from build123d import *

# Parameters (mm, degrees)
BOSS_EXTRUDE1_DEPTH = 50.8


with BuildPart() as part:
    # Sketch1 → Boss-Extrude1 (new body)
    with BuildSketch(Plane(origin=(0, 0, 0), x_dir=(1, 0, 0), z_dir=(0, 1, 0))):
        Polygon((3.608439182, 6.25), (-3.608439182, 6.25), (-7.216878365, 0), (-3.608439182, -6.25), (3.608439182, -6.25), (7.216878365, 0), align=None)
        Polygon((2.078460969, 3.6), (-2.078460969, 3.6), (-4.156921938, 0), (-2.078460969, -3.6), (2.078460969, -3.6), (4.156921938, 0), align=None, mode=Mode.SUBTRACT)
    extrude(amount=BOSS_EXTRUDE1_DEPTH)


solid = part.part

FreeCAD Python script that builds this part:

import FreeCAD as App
import Part
import Sketcher
from FreeCAD import Vector
Q = App.Units.Quantity

doc = App.newDocument("Part")
params = doc.addObject("Spreadsheet::Sheet", "Params")
for row, (alias, value) in enumerate([
    ("pad1_length", "2 in"),
], start=1):
    params.set(f"A{row}", alias)
    params.set(f"B{row}", "=" + value)
    params.setAlias(f"B{row}", alias)

body = doc.addObject("PartDesign::Body", "Body")

# Sketch on XZ plane
sketch1 = doc.addObject("Sketcher::SketchObject", "Sketch")
body.addObject(sketch1)
sketch1.AttachmentSupport = (doc.XZ_Plane, [""])
sketch1.MapMode = "FlatFace"
sketch1.addGeometry([
    Part.LineSegment(Vector(3.6, -6.2, 0), Vector(-3.6, -6.2, 0)),  # 0
    Part.LineSegment(Vector(-3.6, -6.2, 0), Vector(-7.2, 0, 0)),  # 1
    Part.LineSegment(Vector(-7.2, 0, 0), Vector(-3.6, 6.2, 0)),  # 2
    Part.LineSegment(Vector(-3.6, 6.2, 0), Vector(3.6, 6.2, 0)),  # 3
    Part.LineSegment(Vector(3.6, 6.2, 0), Vector(7.2, 0, 0)),  # 4
    Part.LineSegment(Vector(7.2, 0, 0), Vector(3.6, -6.2, 0)),  # 5
    Part.LineSegment(Vector(-2.1, -3.6, 0), Vector(2.1, -3.6, 0)),  # 6
    Part.LineSegment(Vector(2.1, -3.6, 0), Vector(4.2, 0, 0)),  # 7
    Part.LineSegment(Vector(4.2, 0, 0), Vector(2.1, 3.6, 0)),  # 8
    Part.LineSegment(Vector(2.1, 3.6, 0), Vector(-2.1, 3.6, 0)),  # 9
    Part.LineSegment(Vector(-2.1, 3.6, 0), Vector(-4.2, 0, 0)),  # 10
    Part.LineSegment(Vector(-4.2, 0, 0), Vector(-2.1, -3.6, 0)),  # 11
], False)
sketch1.addConstraint([
    Sketcher.Constraint("Coincident", 0, 2, 1, 1),
    Sketcher.Constraint("Coincident", 1, 2, 2, 1),
    Sketcher.Constraint("Coincident", 2, 2, 3, 1),
    Sketcher.Constraint("Coincident", 3, 2, 4, 1),
    Sketcher.Constraint("Coincident", 4, 2, 5, 1),
    Sketcher.Constraint("Coincident", 5, 2, 0, 1),
    Sketcher.Constraint("Coincident", 6, 2, 7, 1),
    Sketcher.Constraint("Coincident", 7, 2, 8, 1),
    Sketcher.Constraint("Coincident", 8, 2, 9, 1),
    Sketcher.Constraint("Coincident", 9, 2, 10, 1),
    Sketcher.Constraint("Coincident", 10, 2, 11, 1),
    Sketcher.Constraint("Coincident", 11, 2, 6, 1),
    Sketcher.Constraint("Horizontal", 0),
    Sketcher.Constraint("Horizontal", 3),
    Sketcher.Constraint("Horizontal", 6),
    Sketcher.Constraint("Horizontal", 9),
    Sketcher.Constraint("Symmetric", 0, 2, 3, 2, -1, 1),
    Sketcher.Constraint("Symmetric", 1, 2, 4, 2, -1, 1),
    Sketcher.Constraint("Symmetric", 6, 2, 9, 2, -1, 1),
    Sketcher.Constraint("Symmetric", 7, 2, 10, 2, -1, 1),
    Sketcher.Constraint("PointOnObject", 1, 2, -1),
    Sketcher.Constraint("PointOnObject", 7, 2, -1),
    Sketcher.Constraint("Parallel", 2, 5),
    Sketcher.Constraint("Parallel", 5, 7),
    Sketcher.Constraint("Parallel", 4, 8),
    Sketcher.Constraint("Parallel", 8, 11),
    Sketcher.Constraint("Vertical", 0, 2, 2, 2),
    Sketcher.Constraint("Angle", 1, Q("120 deg")),
    Sketcher.Constraint("DistanceX", 6, 2, 4, 2, Q("0.2022999 in")),
    Sketcher.Constraint("DistanceX", 0, 2, 0, 1, 7.216878),
    Sketcher.Constraint("DistanceX", 6, 1, 6, 2, 4.156922),
    Sketcher.Constraint("DistanceY", 6, 2, -1, 1, 3.6),
])
pad1 = doc.addObject("PartDesign::Pad", "Pad")
body.addObject(pad1)
pad1.Profile = sketch1
pad1.setExpression("Length", "Params.pad1_length")
pad1.Reversed = True

doc.recompute()
